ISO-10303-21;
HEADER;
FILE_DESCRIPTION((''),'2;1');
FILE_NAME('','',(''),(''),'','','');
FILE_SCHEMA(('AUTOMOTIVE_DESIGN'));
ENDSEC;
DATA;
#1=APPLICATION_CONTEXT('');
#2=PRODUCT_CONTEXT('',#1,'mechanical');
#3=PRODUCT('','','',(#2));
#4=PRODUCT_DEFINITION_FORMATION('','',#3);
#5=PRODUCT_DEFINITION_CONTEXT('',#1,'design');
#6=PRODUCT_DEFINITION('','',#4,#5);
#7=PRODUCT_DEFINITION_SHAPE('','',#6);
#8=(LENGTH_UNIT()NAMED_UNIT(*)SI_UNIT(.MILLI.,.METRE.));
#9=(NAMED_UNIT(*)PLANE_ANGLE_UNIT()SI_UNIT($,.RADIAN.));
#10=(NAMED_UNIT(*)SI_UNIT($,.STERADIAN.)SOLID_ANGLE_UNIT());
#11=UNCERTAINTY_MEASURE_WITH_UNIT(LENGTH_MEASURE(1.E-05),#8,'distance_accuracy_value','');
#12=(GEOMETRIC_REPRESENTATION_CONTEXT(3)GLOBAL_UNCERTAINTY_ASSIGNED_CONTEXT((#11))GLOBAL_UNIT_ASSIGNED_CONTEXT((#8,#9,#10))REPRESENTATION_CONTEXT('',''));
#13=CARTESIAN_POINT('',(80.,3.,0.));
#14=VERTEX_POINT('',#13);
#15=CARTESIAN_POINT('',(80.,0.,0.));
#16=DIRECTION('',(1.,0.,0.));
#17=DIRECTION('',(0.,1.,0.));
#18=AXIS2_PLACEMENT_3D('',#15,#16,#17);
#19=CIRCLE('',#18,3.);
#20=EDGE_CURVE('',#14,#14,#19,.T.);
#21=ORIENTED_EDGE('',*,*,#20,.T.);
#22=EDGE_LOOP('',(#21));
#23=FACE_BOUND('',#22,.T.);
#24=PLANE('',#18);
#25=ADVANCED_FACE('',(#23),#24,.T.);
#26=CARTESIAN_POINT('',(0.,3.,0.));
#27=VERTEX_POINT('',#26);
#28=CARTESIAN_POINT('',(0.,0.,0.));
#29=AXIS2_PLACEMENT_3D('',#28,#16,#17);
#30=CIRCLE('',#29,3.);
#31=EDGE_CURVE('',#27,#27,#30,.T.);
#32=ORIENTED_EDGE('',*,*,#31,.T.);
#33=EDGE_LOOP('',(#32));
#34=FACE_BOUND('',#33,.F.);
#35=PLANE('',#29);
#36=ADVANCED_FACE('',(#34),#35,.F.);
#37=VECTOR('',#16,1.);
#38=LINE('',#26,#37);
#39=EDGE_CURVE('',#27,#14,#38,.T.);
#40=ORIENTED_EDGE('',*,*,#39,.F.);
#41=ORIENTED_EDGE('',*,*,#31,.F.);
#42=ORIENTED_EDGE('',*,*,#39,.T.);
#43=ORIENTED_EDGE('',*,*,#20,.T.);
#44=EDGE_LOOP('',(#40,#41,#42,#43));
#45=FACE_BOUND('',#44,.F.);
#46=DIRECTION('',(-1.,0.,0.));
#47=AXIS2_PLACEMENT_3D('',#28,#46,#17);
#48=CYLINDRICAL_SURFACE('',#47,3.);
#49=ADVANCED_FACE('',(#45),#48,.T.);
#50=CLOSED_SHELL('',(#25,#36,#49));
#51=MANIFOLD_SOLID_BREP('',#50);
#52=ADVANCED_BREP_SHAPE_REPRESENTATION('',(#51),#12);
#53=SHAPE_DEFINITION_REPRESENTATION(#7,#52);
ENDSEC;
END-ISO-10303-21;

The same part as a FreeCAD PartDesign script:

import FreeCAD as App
import Part
import Sketcher

V = App.Vector
Q = App.Units.Quantity

doc = App.newDocument("Part")
body = doc.addObject("PartDesign::Body", "Body")

# Sketch on YZ plane
sketch1 = doc.addObject("Sketcher::SketchObject", "Sketch")
body.addObject(sketch1)
sketch1.AttachmentSupport = (doc.YZ_Plane, [""])
sketch1.MapMode = "FlatFace"
sketch1.addGeometry(Part.Circle(V(0, 0, 0), V(0, 0, 1), 3), False)
sketch1.addConstraint(Sketcher.Constraint("Coincident", 0, 3, -1, 1))
sketch1.addConstraint(Sketcher.Constraint("Diameter", 0, Q("6 mm")))
pad1 = doc.addObject("PartDesign::Pad", "Pad")
body.addObject(pad1)
pad1.Profile = sketch1
pad1.Length = 80

doc.recompute()
